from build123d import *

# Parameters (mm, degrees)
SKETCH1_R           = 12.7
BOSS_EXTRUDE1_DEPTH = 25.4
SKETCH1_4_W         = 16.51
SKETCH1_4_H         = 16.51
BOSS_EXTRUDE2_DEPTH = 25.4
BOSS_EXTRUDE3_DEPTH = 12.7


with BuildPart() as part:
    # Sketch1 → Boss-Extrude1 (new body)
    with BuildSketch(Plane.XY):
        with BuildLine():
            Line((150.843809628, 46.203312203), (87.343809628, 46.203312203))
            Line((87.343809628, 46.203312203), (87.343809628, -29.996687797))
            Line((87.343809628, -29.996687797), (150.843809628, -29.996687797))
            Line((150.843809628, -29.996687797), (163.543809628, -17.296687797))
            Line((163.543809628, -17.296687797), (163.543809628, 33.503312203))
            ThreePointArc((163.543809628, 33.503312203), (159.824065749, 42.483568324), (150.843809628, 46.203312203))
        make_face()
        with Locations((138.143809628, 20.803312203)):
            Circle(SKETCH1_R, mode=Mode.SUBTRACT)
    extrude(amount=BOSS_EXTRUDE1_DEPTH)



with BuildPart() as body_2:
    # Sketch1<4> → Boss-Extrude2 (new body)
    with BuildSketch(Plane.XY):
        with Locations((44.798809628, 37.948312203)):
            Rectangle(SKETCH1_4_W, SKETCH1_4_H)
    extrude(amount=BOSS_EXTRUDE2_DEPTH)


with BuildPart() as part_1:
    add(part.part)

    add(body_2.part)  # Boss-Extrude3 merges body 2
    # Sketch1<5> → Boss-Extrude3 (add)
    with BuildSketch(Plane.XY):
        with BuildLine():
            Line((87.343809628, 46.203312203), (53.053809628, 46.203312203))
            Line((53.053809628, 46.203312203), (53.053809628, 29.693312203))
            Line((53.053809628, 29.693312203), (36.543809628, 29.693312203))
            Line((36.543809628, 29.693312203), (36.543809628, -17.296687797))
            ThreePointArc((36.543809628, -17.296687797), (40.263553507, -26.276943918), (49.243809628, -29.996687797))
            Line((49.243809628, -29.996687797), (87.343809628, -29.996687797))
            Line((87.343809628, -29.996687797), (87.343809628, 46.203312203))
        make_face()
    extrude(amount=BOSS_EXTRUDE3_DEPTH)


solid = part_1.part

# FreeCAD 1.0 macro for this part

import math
import FreeCAD as App
import Part
import Sketcher
from FreeCAD import Vector
Q = App.Units.Quantity


def add_polygon(sketch, points):
    """Adds a closed chain of lines whose ends are joined by coincident constraints."""
    first, n = sketch.GeometryCount, len(points)
    for a, b in zip(points, points[1:] + points[:1]):
        sketch.addGeometry(Part.LineSegment(App.Vector(*a, 0), App.Vector(*b, 0)), False)
    for i in range(n):
        sketch.addConstraint(Sketcher.Constraint("Coincident", first + i, 2, first + (i + 1) % n, 1))

doc = App.newDocument("Part")
body = doc.addObject("PartDesign::Body", "Body")

# Sketch on XY plane
sketch1 = body.newObject("Sketcher::SketchObject", "Sketch")
sketch1.AttachmentSupport = (doc.getObject("XY_Plane"), [""])
sketch1.MapMode = "FlatFace"
sketch1.addGeometry([
    Part.LineSegment(Vector(151, 46, 0), Vector(87, 46, 0)),  # 0
    Part.LineSegment(Vector(87, 46, 0), Vector(87, -30, 0)),  # 1
    Part.LineSegment(Vector(87, -30, 0), Vector(151, -30, 0)),  # 2
    Part.LineSegment(Vector(151, -30, 0), Vector(164, -17, 0)),  # 3
    Part.LineSegment(Vector(164, -17, 0), Vector(164, 34, 0)),  # 4
    Part.ArcOfCircle(Part.Circle(Vector(151, 34, 0), Vector(0, 0, 1), 13), math.radians(0), math.radians(90)),  # 5
    Part.Circle(Vector(138, 21, 0), Vector(0, 0, 1), 13),  # 6
], False)
sketch1.addConstraint([
    Sketcher.Constraint("Coincident", 0, 2, 1, 1),
    Sketcher.Constraint("Coincident", 1, 2, 2, 1),
    Sketcher.Constraint("Coincident", 2, 2, 3, 1),
    Sketcher.Constraint("Coincident", 3, 2, 4, 1),
    Sketcher.Constraint("Tangent", 4, 2, 5, 1),
    Sketcher.Constraint("Tangent", 5, 2, 0, 1),
    Sketcher.Constraint("Horizontal", 0),
    Sketcher.Constraint("Vertical", 1),
    Sketcher.Constraint("Horizontal", 2),
    Sketcher.Constraint("Vertical", 4),
    Sketcher.Constraint("Equal", 5, 6),
    Sketcher.Constraint("Vertical", 5, 3, 2, 2),
    Sketcher.Constraint("Diameter", 6, Q("1 in")),
    Sketcher.Constraint("DistanceY", 1, 2, 1, 1, Q("3 in")),
    Sketcher.Constraint("DistanceY", 4, 1, 4, 2, Q("2 in")),
    Sketcher.Constraint("DistanceX", 0, 2, 0, 1, Q("2.5 in")),
    Sketcher.Constraint("DistanceX", 0, 2, 6, 3, Q("2 in")),
    Sketcher.Constraint("DistanceY", 6, 3, 0, 2, Q("1 in")),
    Sketcher.Constraint("DistanceX", -1, 1, 5, 3, 150.84381),
    Sketcher.Constraint("DistanceY", -1, 1, 5, 3, 33.503312),
])
pad1 = body.newObject("PartDesign::Pad", "Pad")
pad1.Profile = sketch1
pad1.Length = Q("1 in")
body2 = doc.addObject("PartDesign::Body", "Body001")

# Sketch on XY plane
sketch2 = body2.newObject("Sketcher::SketchObject", "Sketch001")
sketch2.AttachmentSupport = (doc.getObject("XY_Plane001"), [""])
sketch2.MapMode = "FlatFace"
add_polygon(sketch2, [(37, 46), (37, 30), (53, 30), (53, 46)])  # lines 0-3
sketch2.addConstraint([
    Sketcher.Constraint("Vertical", 0),
    Sketcher.Constraint("Horizontal", 1),
    Sketcher.Constraint("Vertical", 2),
    Sketcher.Constraint("Horizontal", 3),
    Sketcher.Constraint("Equal", 3, 0),
    Sketcher.Constraint("DistanceX", 1, 1, 1, 2, Q("0.65 in")),
    Sketcher.Constraint("DistanceX", -1, 1, 0, 2, 36.54381),
    Sketcher.Constraint("DistanceY", -1, 1, 0, 2, 29.693312),
])
pad2 = body2.newObject("PartDesign::Pad", "Pad001")
pad2.Profile = sketch2
pad2.Length = Q("1 in")
body.AllowCompound = True
doc.recompute()

boolean = body.newObject("PartDesign::Boolean", "Boolean")
boolean.Type = "Fuse"
boolean.addObjects([body2])

# Sketch on XY plane
sketch3 = body.newObject("Sketcher::SketchObject", "Sketch002")
sketch3.AttachmentSupport = (doc.getObject("XY_Plane"), [""])
sketch3.MapMode = "FlatFace"
sketch3.addGeometry([
    Part.LineSegment(Vector(87, 46, 0), Vector(53, 46, 0)),  # 0
    Part.LineSegment(Vector(53, 46, 0), Vector(53, 30, 0)),  # 1
    Part.LineSegment(Vector(53, 30, 0), Vector(37, 30, 0)),  # 2
    Part.LineSegment(Vector(37, 30, 0), Vector(37, -17, 0)),  # 3
    Part.ArcOfCircle(Part.Circle(Vector(49, -17, 0), Vector(0, 0, 1), 13), math.radians(180), math.radians(270)),  # 4
    Part.LineSegment(Vector(49, -30, 0), Vector(87, -30, 0)),  # 5
    Part.LineSegment(Vector(87, -30, 0), Vector(87, 46, 0)),  # 6
], False)
sketch3.addConstraint([
    Sketcher.Constraint("Coincident", 0, 2, 1, 1),
    Sketcher.Constraint("Coincident", 1, 2, 2, 1),
    Sketcher.Constraint("Coincident", 2, 2, 3, 1),
    Sketcher.Constraint("Tangent", 3, 2, 4, 1),
    Sketcher.Constraint("Tangent", 4, 2, 5, 1),
    Sketcher.Constraint("Coincident", 5, 2, 6, 1),
    Sketcher.Constraint("Coincident", 6, 2, 0, 1),
    Sketcher.Constraint("Horizontal", 0),
    Sketcher.Constraint("Vertical", 1),
    Sketcher.Constraint("Horizontal", 2),
    Sketcher.Constraint("Vertical", 3),
    Sketcher.Constraint("Horizontal", 5),
    Sketcher.Constraint("Vertical", 6),
    Sketcher.Constraint("Equal", 2, 1),
    Sketcher.Constraint("Radius", 4, Q("0.5 in")),
    Sketcher.Constraint("DistanceY", 6, 1, 6, 2, Q("3 in")),
    Sketcher.Constraint("DistanceX", 5, 1, 5, 2, Q("1.5 in")),
    Sketcher.Constraint("DistanceX", 0, 2, 0, 1, Q("1.35 in")),
    Sketcher.Constraint("DistanceX", -1, 1, 4, 3, 49.24381),
    Sketcher.Constraint("DistanceY", 4, 3, -1, 1, 17.296688),
])
pad3 = body.newObject("PartDesign::Pad", "Pad002")
pad3.Profile = sketch3
pad3.Length = Q("0.5 in")

doc.recompute()
